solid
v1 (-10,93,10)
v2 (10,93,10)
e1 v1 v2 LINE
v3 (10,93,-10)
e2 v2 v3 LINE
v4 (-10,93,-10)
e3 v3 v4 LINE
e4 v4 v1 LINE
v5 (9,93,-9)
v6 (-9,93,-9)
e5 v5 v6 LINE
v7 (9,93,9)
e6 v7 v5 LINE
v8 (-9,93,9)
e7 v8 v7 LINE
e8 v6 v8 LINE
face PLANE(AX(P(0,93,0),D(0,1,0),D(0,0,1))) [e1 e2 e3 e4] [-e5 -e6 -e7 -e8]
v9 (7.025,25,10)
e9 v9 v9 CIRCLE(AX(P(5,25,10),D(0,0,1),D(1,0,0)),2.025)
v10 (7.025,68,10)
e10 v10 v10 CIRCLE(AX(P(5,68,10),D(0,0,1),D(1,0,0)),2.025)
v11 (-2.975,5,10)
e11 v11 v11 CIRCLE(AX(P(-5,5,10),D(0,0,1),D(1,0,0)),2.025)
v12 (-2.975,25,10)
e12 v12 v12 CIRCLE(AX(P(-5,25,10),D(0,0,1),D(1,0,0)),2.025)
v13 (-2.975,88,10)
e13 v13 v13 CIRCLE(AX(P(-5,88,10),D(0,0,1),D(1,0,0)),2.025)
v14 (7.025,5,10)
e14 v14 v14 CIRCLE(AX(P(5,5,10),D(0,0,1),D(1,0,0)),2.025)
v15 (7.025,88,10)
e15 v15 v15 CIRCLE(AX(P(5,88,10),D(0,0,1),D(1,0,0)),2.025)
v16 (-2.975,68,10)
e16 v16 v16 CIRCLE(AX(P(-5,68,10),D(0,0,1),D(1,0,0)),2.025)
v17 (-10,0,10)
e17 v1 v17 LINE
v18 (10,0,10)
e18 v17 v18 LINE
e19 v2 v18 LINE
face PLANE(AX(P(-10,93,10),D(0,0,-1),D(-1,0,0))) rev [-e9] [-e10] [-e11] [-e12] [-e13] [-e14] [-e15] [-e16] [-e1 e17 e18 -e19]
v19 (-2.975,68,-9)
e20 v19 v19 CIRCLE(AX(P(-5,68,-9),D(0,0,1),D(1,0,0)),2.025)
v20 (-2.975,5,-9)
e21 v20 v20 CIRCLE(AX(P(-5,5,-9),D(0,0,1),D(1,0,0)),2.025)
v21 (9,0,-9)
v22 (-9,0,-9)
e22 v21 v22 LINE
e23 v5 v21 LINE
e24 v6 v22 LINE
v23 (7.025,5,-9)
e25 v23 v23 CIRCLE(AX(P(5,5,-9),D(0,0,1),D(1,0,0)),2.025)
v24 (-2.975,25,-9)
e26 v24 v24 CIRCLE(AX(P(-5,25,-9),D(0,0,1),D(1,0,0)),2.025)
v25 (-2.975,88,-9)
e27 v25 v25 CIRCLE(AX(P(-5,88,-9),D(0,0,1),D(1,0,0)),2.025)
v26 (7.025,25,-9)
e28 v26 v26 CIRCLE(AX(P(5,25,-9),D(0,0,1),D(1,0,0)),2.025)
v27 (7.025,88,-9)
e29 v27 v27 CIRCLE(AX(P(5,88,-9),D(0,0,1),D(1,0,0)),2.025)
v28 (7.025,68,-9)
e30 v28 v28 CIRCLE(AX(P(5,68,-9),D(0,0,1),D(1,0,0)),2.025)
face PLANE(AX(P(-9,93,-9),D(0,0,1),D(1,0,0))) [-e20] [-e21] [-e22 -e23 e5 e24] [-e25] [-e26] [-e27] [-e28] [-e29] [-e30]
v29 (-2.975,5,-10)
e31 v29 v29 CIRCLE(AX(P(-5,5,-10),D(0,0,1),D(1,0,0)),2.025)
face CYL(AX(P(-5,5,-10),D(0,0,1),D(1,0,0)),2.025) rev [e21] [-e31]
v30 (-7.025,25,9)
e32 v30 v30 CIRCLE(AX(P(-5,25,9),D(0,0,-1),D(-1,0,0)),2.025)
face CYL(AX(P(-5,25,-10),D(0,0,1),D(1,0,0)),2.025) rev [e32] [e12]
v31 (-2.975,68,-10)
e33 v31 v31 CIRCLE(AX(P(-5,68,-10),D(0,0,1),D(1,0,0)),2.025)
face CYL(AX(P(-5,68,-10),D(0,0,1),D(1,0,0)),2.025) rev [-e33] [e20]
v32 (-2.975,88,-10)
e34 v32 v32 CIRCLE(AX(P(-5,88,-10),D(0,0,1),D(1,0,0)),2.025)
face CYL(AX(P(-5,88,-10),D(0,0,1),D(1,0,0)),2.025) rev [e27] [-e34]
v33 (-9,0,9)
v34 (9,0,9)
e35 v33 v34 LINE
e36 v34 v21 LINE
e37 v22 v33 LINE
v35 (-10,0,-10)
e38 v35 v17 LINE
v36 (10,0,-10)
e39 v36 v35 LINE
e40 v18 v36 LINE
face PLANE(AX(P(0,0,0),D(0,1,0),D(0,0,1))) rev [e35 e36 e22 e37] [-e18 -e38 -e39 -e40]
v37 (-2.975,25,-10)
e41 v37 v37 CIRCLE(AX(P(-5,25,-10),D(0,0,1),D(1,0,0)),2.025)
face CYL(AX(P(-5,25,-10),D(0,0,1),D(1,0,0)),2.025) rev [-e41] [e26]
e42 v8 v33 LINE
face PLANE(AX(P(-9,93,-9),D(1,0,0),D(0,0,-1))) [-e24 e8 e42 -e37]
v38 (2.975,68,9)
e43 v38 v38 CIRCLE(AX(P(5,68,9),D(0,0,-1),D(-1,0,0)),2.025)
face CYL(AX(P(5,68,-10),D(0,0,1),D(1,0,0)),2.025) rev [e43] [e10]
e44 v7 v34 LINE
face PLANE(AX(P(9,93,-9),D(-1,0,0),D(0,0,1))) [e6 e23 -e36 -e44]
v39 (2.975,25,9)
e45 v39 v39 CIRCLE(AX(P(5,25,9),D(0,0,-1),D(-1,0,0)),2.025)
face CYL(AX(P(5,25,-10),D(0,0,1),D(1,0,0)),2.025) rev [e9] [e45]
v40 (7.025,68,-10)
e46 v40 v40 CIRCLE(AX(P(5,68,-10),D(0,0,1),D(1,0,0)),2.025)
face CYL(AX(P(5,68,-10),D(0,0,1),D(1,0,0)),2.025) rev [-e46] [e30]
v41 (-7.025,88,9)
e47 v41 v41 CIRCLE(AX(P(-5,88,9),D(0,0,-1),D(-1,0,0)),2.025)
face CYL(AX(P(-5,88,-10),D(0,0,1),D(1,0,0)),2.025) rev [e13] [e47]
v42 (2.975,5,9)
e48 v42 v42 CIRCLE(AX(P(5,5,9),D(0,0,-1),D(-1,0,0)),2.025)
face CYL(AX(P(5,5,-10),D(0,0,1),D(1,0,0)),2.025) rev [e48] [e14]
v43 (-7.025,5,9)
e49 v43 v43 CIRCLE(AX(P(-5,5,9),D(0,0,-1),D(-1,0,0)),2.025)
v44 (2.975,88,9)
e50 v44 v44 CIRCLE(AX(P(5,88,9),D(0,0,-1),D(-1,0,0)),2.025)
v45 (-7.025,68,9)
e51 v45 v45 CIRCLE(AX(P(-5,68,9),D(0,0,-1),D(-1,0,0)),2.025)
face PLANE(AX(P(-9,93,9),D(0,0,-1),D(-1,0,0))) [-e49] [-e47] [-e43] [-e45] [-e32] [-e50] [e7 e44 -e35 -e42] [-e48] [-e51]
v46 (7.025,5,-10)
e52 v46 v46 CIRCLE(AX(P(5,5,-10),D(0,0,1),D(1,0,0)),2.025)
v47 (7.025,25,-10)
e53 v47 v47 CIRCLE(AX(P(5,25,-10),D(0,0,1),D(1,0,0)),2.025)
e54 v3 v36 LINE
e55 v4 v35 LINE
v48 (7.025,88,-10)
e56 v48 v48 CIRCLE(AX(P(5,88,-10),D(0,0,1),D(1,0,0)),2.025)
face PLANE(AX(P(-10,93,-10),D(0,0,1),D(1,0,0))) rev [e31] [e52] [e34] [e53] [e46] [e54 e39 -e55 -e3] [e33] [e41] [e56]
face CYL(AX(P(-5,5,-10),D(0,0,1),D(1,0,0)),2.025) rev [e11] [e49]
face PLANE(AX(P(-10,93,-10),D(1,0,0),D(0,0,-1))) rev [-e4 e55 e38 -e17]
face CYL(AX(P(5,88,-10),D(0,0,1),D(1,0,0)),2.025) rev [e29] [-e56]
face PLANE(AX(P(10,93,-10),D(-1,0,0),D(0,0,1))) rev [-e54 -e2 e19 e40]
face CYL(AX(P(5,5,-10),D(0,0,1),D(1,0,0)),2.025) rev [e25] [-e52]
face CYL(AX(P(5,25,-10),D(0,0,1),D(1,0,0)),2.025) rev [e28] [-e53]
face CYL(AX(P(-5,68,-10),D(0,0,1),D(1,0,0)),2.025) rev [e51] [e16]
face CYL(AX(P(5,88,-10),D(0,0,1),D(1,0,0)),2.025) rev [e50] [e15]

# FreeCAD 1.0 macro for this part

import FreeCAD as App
import Part
import Sketcher

doc = App.newDocument("Part")
params = doc.addObject("Spreadsheet::Sheet", "Params")
for row, (alias, value) in enumerate([
    ("sketch1_width", "20 mm"),
    ("sketch1_width2", "18 mm"),
    ("pad1_length", "93 mm"),
    ("sketch2_diameter", "4.05 mm"),
], start=1):
    params.set(f"A{row}", alias)
    params.set(f"B{row}", "=" + value)
    params.setAlias(f"B{row}", alias)

body = doc.addObject("PartDesign::Body", "Body")

# Sketch on XZ plane
sketch1 = body.newObject("Sketcher::SketchObject", "Sketch")
sketch1.AttachmentSupport = (doc.getObject("XZ_Plane"), [""])
sketch1.MapMode = "FlatFace"
sketch1.addGeometry([
    Part.LineSegment(App.Vector(-10, -10, 0), App.Vector(-10, 10, 0)),  # 0
    Part.LineSegment(App.Vector(-10, 10, 0), App.Vector(10, 10, 0)),  # 1
    Part.LineSegment(App.Vector(10, 10, 0), App.Vector(10, -10, 0)),  # 2
    Part.LineSegment(App.Vector(10, -10, 0), App.Vector(-10, -10, 0)),  # 3
    Part.LineSegment(App.Vector(9, 9, 0), App.Vector(-9, 9, 0)),  # 4
    Part.LineSegment(App.Vector(-9, 9, 0), App.Vector(-9, -9, 0)),  # 5
    Part.LineSegment(App.Vector(-9, -9, 0), App.Vector(9, -9, 0)),  # 6
    Part.LineSegment(App.Vector(9, -9, 0), App.Vector(9, 9, 0)),  # 7
], False)
sketch1.addConstraint([
    Sketcher.Constraint("Coincident", 0, 2, 1, 1),
    Sketcher.Constraint("Coincident", 1, 2, 2, 1),
    Sketcher.Constraint("Coincident", 2, 2, 3, 1),
    Sketcher.Constraint("Coincident", 3, 2, 0, 1),
    Sketcher.Constraint("Coincident", 4, 2, 5, 1),
    Sketcher.Constraint("Coincident", 5, 2, 6, 1),
    Sketcher.Constraint("Coincident", 6, 2, 7, 1),
    Sketcher.Constraint("Coincident", 7, 2, 4, 1),
    Sketcher.Constraint("Vertical", 0),
    Sketcher.Constraint("Horizontal", 1),
    Sketcher.Constraint("Vertical", 2),
    Sketcher.Constraint("Horizontal", 3),
    Sketcher.Constraint("Horizontal", 4),
    Sketcher.Constraint("Vertical", 5),
    Sketcher.Constraint("Horizontal", 6),
    Sketcher.Constraint("Vertical", 7),
    Sketcher.Constraint("Symmetric", 0, 2, 2, 2, -1, 1),
    Sketcher.Constraint("Symmetric", 4, 2, 6, 2, -1, 1),
    Sketcher.Constraint("Equal", 3, 0),
    Sketcher.Constraint("Equal", 6, 5),
    Sketcher.Constraint("DistanceX", 1, 1, 1, 2, 20.0),
    Sketcher.Constraint("DistanceX", 4, 2, 4, 1, 18.0),
])
sketch1.setExpression("Constraints[20]", "Params.sketch1_width")
sketch1.setExpression("Constraints[21]", "Params.sketch1_width2")
pad1 = body.newObject("PartDesign::Pad", "Pad")
pad1.Profile = sketch1
pad1.setExpression("Length", "Params.pad1_length")
pad1.Reversed = True

# Sketch on XY plane
sketch2 = body.newObject("Sketcher::SketchObject", "Sketch001")
sketch2.AttachmentSupport = (doc.getObject("XY_Plane"), [""])
sketch2.MapMode = "FlatFace"
sketch2.AttachmentOffset = App.Placement(App.Vector(0, 0, 10), App.Rotation())
sketch2.addGeometry([
    Part.Circle(App.Vector(-5, 5, 0), App.Vector(0, 0, 1), 2),  # 0
    Part.Circle(App.Vector(-5, 25, 0), App.Vector(0, 0, 1), 2),  # 1
    Part.Circle(App.Vector(5, 25, 0), App.Vector(0, 0, 1), 2),  # 2
    Part.Circle(App.Vector(5, 5, 0), App.Vector(0, 0, 1), 2),  # 3
    Part.Circle(App.Vector(5, 88, 0), App.Vector(0, 0, 1), 2),  # 4
    Part.Circle(App.Vector(-5, 88, 0), App.Vector(0, 0, 1), 2),  # 5
    Part.Circle(App.Vector(-5, 68, 0), App.Vector(0, 0, 1), 2),  # 6
    Part.Circle(App.Vector(5, 68, 0), App.Vector(0, 0, 1), 2),  # 7
], False)
sketch2.addConstraint([
    Sketcher.Constraint("Equal", 0, 1),
    Sketcher.Constraint("Equal", 1, 2),
    Sketcher.Constraint("Equal", 2, 3),
    Sketcher.Constraint("Equal", 3, 4),
    Sketcher.Constraint("Equal", 4, 5),
    Sketcher.Constraint("Equal", 5, 6),
    Sketcher.Constraint("Equal", 6, 7),
    Sketcher.Constraint("Symmetric", 1, 3, 2, 3, -2),
    Sketcher.Constraint("Symmetric", 0, 3, 3, 3, -2),
    Sketcher.Constraint("Symmetric", 4, 3, 5, 3, -2),
    Sketcher.Constraint("Symmetric", 6, 3, 7, 3, -2),
    Sketcher.Constraint("Vertical", 0, 3, 1, 3),
    Sketcher.Constraint("Vertical", 3, 3, 4, 3),
    Sketcher.Constraint("Vertical", 5, 3, 6, 3),
    Sketcher.Constraint("Diameter", 0, 4.05),
    Sketcher.Constraint("DistanceX", 0, 3, -1, 1, 5.0),
    Sketcher.Constraint("DistanceY", -1, 1, 0, 3, 5.0),
    Sketcher.Constraint("DistanceY", -1, 1, 1, 3, 25.0),
    Sketcher.Constraint("DistanceY", -1, 1, 4, 3, 88.0),
    Sketcher.Constraint("DistanceY", -1, 1, 6, 3, 68.0),
])
sketch2.setExpression("Constraints[14]", "Params.sketch2_diameter")
pocket1 = body.newObject("PartDesign::Pocket", "Pocket")
pocket1.Profile = sketch2
pocket1.Type = "ThroughAll"

doc.recompute()
